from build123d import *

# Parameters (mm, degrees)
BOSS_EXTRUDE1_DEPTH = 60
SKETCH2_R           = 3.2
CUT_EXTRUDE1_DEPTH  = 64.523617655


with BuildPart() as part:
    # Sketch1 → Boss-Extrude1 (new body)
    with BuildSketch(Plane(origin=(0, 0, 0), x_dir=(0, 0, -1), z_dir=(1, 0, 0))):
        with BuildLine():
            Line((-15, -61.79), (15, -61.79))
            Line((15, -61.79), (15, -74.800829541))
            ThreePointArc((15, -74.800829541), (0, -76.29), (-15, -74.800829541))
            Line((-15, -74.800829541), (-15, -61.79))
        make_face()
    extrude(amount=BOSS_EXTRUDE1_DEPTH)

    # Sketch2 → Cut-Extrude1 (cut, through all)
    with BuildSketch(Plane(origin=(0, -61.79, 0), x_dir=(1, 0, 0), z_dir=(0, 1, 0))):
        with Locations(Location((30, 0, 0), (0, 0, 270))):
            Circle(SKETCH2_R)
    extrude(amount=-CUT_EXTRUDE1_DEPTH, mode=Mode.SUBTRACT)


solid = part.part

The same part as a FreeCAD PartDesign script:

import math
import FreeCAD as App
import Part
import Sketcher

doc = App.newDocument("Part")
body = doc.addObject("PartDesign::Body", "Body")

sketch1 = doc.addObject("Sketcher::SketchObject", "Sketch")
body.addObject(sketch1)
sketch1.AttachmentSupport = (doc.YZ_Plane, [""])
sketch1.MapMode = "FlatFace"
sketch1.addGeometry([
    Part.LineSegment(App.Vector(-61.79, -15, 0), App.Vector(-61.79, 15, 0)),
    Part.LineSegment(App.Vector(-61.79, 15, 0), App.Vector(-74.80083, 15, 0)),
    Part.ArcOfCircle(Part.Circle(App.Vector(0, 0, 0), App.Vector(0, 0, 1), 76.29), math.radians(168.660732), math.radians(191.339268)),
    Part.LineSegment(App.Vector(-74.80083, -15, 0), App.Vector(-61.79, -15, 0)),
], False)
sketch1.addConstraint([
    Sketcher.Constraint("Coincident", 0, 2, 1, 1),
    Sketcher.Constraint("Coincident", 1, 2, 2, 1),
    Sketcher.Constraint("Coincident", 2, 2, 3, 1),
    Sketcher.Constraint("Coincident", 3, 2, 0, 1),
    Sketcher.Constraint("Vertical", 0),
    Sketcher.Constraint("Horizontal", 1),
    Sketcher.Constraint("Horizontal", 3),
    Sketcher.Constraint("Coincident", 2, 3, -1, 1),
    Sketcher.Constraint("Vertical", 1, 2, 2, 2),
    Sketcher.Constraint("DistanceY", 0, 1, 0, 2, 30.0),
    Sketcher.Constraint("Radius", 2, 76.29),
    Sketcher.Constraint("DistanceX", 0, 2, -1, 1, 61.79),
])
pad1 = doc.addObject("PartDesign::Pad", "Pad")
body.addObject(pad1)
pad1.Profile = sketch1
pad1.Length = 60

sketch2 = doc.addObject("Sketcher::SketchObject", "Sketch001")
body.addObject(sketch2)
sketch2.AttachmentSupport = (doc.XZ_Plane, [""])
sketch2.MapMode = "FlatFace"
sketch2.AttachmentOffset = App.Placement(App.Vector(0, 0, 61.79), App.Rotation())
sketch2.addGeometry(Part.Circle(App.Vector(30, 0, 0), App.Vector(0, 0, 1), 3.2), False)
sketch2.addConstraint([
    Sketcher.Constraint("PointOnObject", 0, 3, -1),
    Sketcher.Constraint("Diameter", 0, 6.4),
    Sketcher.Constraint("DistanceX", -1, 1, 0, 3, 30.0),
])
pocket1 = doc.addObject("PartDesign::Pocket", "Pocket")
body.addObject(pocket1)
pocket1.Profile = sketch2
pocket1.Type = "ThroughAll"
pocket1.Reversed = True

doc.recompute()
